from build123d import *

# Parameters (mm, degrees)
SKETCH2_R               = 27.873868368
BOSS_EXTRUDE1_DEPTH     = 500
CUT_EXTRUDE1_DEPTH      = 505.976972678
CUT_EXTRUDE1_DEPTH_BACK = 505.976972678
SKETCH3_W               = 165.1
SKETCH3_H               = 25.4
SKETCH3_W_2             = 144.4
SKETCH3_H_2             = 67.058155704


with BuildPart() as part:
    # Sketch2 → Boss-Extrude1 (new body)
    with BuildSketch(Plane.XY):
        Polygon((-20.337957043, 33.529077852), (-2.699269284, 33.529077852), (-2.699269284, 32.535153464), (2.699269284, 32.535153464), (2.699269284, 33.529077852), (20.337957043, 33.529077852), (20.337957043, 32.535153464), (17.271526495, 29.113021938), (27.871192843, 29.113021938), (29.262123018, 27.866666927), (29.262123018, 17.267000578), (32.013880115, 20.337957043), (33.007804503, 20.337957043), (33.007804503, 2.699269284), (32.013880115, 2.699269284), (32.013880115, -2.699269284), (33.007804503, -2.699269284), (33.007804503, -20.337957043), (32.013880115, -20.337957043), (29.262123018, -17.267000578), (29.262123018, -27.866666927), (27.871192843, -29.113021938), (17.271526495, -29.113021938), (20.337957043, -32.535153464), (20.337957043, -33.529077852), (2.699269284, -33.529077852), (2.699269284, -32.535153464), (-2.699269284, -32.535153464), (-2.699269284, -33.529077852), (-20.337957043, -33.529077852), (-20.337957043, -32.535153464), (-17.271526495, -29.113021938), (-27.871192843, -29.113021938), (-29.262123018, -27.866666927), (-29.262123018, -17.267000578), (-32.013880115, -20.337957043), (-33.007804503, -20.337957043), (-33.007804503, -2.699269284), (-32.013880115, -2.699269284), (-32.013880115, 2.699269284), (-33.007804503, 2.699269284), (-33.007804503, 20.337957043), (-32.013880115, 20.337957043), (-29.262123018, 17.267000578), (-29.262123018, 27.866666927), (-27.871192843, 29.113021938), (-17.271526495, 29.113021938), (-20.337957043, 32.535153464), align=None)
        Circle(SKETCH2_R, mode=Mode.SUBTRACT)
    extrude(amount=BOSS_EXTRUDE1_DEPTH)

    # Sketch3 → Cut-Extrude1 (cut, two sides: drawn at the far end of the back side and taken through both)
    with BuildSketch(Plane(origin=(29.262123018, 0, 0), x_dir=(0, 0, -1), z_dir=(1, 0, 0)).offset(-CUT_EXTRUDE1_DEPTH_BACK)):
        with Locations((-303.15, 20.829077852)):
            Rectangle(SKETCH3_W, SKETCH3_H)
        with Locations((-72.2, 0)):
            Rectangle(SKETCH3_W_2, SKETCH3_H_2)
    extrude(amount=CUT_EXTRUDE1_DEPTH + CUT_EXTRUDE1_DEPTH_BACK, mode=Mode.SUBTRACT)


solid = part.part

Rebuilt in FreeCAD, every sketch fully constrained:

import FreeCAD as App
import Part
import Sketcher

V = App.Vector
Q = App.Units.Quantity


def add_polygon(sketch, points):
    """Adds a closed chain of lines whose ends are joined by coincident constraints."""
    first, n = sketch.GeometryCount, len(points)
    for a, b in zip(points, points[1:] + points[:1]):
        sketch.addGeometry(Part.LineSegment(App.Vector(*a, 0), App.Vector(*b, 0)), False)
    for i in range(n):
        sketch.addConstraint(Sketcher.Constraint("Coincident", first + i, 2, first + (i + 1) % n, 1))

doc = App.newDocument("Part")
body = doc.addObject("PartDesign::Body", "Body")

sketch1 = doc.addObject("Sketcher::SketchObject", "Sketch")
body.addObject(sketch1)
sketch1.AttachmentSupport = (doc.XY_Plane, [""])
sketch1.MapMode = "FlatFace"
add_polygon(sketch1, [(-2.699269, 33.529078), (-20.337957, 33.529078), (-20.337957, 32.535153), (-17.271526, 29.113022), (-27.871193, 29.113022), (-29.262123, 27.866667), (-29.262123, 17.267001), (-32.01388, 20.337957), (-33.007805, 20.337957), (-33.007805, 2.699269), (-32.01388, 2.699269), (-32.01388, -2.699269), (-33.007805, -2.699269), (-33.007805, -20.337957), (-32.01388, -20.337957), (-29.262123, -17.267001), (-29.262123, -27.866667), (-27.871193, -29.113022), (-17.271526, -29.113022), (-20.337957, -32.535153), (-20.337957, -33.529078), (-2.699269, -33.529078), (-2.699269, -32.535153), (2.699269, -32.535153), (2.699269, -33.529078), (20.337957, -33.529078), (20.337957, -32.535153), (17.271526, -29.113022), (27.871193, -29.113022), (29.262123, -27.866667), (29.262123, -17.267001), (32.01388, -20.337957), (33.007805, -20.337957), (33.007805, -2.699269), (32.01388, -2.699269), (32.01388, 2.699269), (33.007805, 2.699269), (33.007805, 20.337957), (32.01388, 20.337957), (29.262123, 17.267001), (29.262123, 27.866667), (27.871193, 29.113022), (17.271526, 29.113022), (20.337957, 32.535153), (20.337957, 33.529078), (2.699269, 33.529078), (2.699269, 32.535153), (-2.699269, 32.535153)])
sketch1.addGeometry(Part.Circle(V(0, 0, 0), V(0, 0, 1), 27.873868), False)
sketch1.addConstraint([
    Sketcher.Constraint("Horizontal", 0),
    Sketcher.Constraint("Vertical", 1),
    Sketcher.Constraint("Horizontal", 3),
    Sketcher.Constraint("Vertical", 5),
    Sketcher.Constraint("Horizontal", 7),
    Sketcher.Constraint("Vertical", 8),
    Sketcher.Constraint("Horizontal", 9),
    Sketcher.Constraint("Vertical", 10),
    Sketcher.Constraint("Horizontal", 11),
    Sketcher.Constraint("Vertical", 12),
    Sketcher.Constraint("Horizontal", 13),
    Sketcher.Constraint("Vertical", 15),
    Sketcher.Constraint("Horizontal", 17),
    Sketcher.Constraint("Vertical", 19),
    Sketcher.Constraint("Horizontal", 20),
    Sketcher.Constraint("Vertical", 21),
    Sketcher.Constraint("Horizontal", 22),
    Sketcher.Constraint("Vertical", 23),
    Sketcher.Constraint("Horizontal", 24),
    Sketcher.Constraint("Vertical", 25),
    Sketcher.Constraint("Horizontal", 27),
    Sketcher.Constraint("Vertical", 29),
    Sketcher.Constraint("Horizontal", 31),
    Sketcher.Constraint("Vertical", 32),
    Sketcher.Constraint("Horizontal", 33),
    Sketcher.Constraint("Vertical", 34),
    Sketcher.Constraint("Horizontal", 35),
    Sketcher.Constraint("Vertical", 36),
    Sketcher.Constraint("Horizontal", 37),
    Sketcher.Constraint("Vertical", 39),
    Sketcher.Constraint("Horizontal", 41),
    Sketcher.Constraint("Vertical", 43),
    Sketcher.Constraint("Horizontal", 44),
    Sketcher.Constraint("Vertical", 45),
    Sketcher.Constraint("Horizontal", 46),
    Sketcher.Constraint("Vertical", 47),
    Sketcher.Constraint("Coincident", 48, 3, -1, 1),
    Sketcher.Constraint("Symmetric", 0, 2, 24, 2, -1, 1),
    Sketcher.Constraint("Symmetric", 2, 2, 26, 2, -1, 1),
    Sketcher.Constraint("Symmetric", 4, 2, 28, 2, -1, 1),
    Sketcher.Constraint("Symmetric", 6, 2, 30, 2, -1, 1),
    Sketcher.Constraint("Symmetric", 8, 2, 32, 2, -1, 1),
    Sketcher.Constraint("Symmetric", 10, 2, 34, 2, -1, 1),
    Sketcher.Constraint("Symmetric", 12, 2, 36, 2, -1, 1),
    Sketcher.Constraint("Symmetric", 14, 2, 38, 2, -1, 1),
    Sketcher.Constraint("Symmetric", 16, 2, 40, 2, -1, 1),
    Sketcher.Constraint("Symmetric", 18, 2, 42, 2, -1, 1),
    Sketcher.Constraint("Symmetric", 20, 2, 44, 2, -1, 1),
    Sketcher.Constraint("Symmetric", 22, 2, 46, 2, -1, 1),
    Sketcher.Constraint("Symmetric", 20, 2, 23, 2, -2),
    Sketcher.Constraint("Symmetric", 18, 2, 25, 2, -2),
    Sketcher.Constraint("Symmetric", 17, 2, 26, 2, -2),
    Sketcher.Constraint("Symmetric", 15, 2, 28, 2, -2),
    Sketcher.Constraint("Symmetric", 13, 2, 30, 2, -2),
    Sketcher.Constraint("Symmetric", 11, 2, 32, 2, -2),
    Sketcher.Constraint("Perpendicular", 2, 4),
    Sketcher.Constraint("Perpendicular", 4, 6),
    Sketcher.Constraint("Perpendicular", 14, 16),
    Sketcher.Constraint("Perpendicular", 16, 18),
    Sketcher.Constraint("Parallel", 6, 26),
    Sketcher.Constraint("Perpendicular", 26, 28),
    Sketcher.Constraint("Perpendicular", 28, 30),
    Sketcher.Constraint("Parallel", 18, 38),
    Sketcher.Constraint("Perpendicular", 38, 40),
    Sketcher.Constraint("Perpendicular", 40, 42),
    Sketcher.Constraint("Horizontal", 18, 2, 21, 2),
    Sketcher.Constraint("Vertical", 6, 2, 9, 2),
    Sketcher.Constraint("Equal", 37, 1),
    Sketcher.Constraint("Equal", 41, 5),
    Sketcher.Constraint("Equal", 44, 8),
    Sketcher.Constraint("Equal", 46, 10),
    Sketcher.Constraint("Diameter", 48, Q("55.747737 mm")),
    Sketcher.Constraint("DistanceY", -1, 1, 5, 2, Q("17.267001 mm")),
    Sketcher.Constraint("DistanceX", 22, 1, 22, 2, Q("5.398539 mm")),
    Sketcher.Constraint("DistanceX", 0, 2, 0, 1, Q("17.638688 mm")),
    Sketcher.Constraint("DistanceX", 3, 2, 3, 1, Q("10.599666 mm")),
    Sketcher.Constraint("DistanceX", 7, 2, 7, 1, Q("0.993924 mm")),
    Sketcher.Constraint("DistanceY", -1, 1, 2, 2, Q("29.113022 mm")),
    Sketcher.Constraint("DistanceX", 6, 2, -1, 1, Q("32.01388 mm")),
    Sketcher.Constraint("DistanceX", 1, 2, 2, 2, Q("3.066431 mm")),
])
pad1 = doc.addObject("PartDesign::Pad", "Pad")
body.addObject(pad1)
pad1.Profile = sketch1
pad1.Length = 500

sketch2 = doc.addObject("Sketcher::SketchObject", "Sketch001")
body.addObject(sketch2)
sketch2.AttachmentSupport = (doc.YZ_Plane, [""])
sketch2.MapMode = "FlatFace"
sketch2.AttachmentOffset = App.Placement(V(0, 0, 29.262123), App.Rotation())
add_polygon(sketch2, [(33.529078, 385.7), (8.129078, 385.7), (8.129078, 220.6), (33.529078, 220.6)])
add_polygon(sketch2, [(33.529078, 144.4), (-33.529078, 144.4), (-33.529078, 0), (33.529078, 0)])
sketch2.addConstraint([
    Sketcher.Constraint("Horizontal", 0),
    Sketcher.Constraint("Vertical", 1),
    Sketcher.Constraint("Horizontal", 2),
    Sketcher.Constraint("Vertical", 3),
    Sketcher.Constraint("Horizontal", 4),
    Sketcher.Constraint("Vertical", 5),
    Sketcher.Constraint("Horizontal", 6),
    Sketcher.Constraint("Vertical", 7),
    Sketcher.Constraint("Symmetric", 5, 2, 6, 2, -1, 1),
    Sketcher.Constraint("Vertical", 3, 2, 6, 2),
    Sketcher.Constraint("DistanceX", 0, 2, 0, 1, Q("25.4 mm")),
    Sketcher.Constraint("DistanceY", 1, 2, 1, 1, Q("165.1 mm")),
    Sketcher.Constraint("DistanceY", 5, 2, 5, 1, Q("144.4 mm")),
    Sketcher.Constraint("DistanceY", -1, 1, 0, 2, Q("385.7 mm")),
    Sketcher.Constraint("DistanceX", 4, 2, 4, 1, Q("67.058156 mm")),
])
pocket1 = doc.addObject("PartDesign::Pocket", "Pocket")
body.addObject(pocket1)
pocket1.Profile = sketch2
pocket1.Type = "ThroughAll"
pocket1.Midplane = True

doc.recompute()
